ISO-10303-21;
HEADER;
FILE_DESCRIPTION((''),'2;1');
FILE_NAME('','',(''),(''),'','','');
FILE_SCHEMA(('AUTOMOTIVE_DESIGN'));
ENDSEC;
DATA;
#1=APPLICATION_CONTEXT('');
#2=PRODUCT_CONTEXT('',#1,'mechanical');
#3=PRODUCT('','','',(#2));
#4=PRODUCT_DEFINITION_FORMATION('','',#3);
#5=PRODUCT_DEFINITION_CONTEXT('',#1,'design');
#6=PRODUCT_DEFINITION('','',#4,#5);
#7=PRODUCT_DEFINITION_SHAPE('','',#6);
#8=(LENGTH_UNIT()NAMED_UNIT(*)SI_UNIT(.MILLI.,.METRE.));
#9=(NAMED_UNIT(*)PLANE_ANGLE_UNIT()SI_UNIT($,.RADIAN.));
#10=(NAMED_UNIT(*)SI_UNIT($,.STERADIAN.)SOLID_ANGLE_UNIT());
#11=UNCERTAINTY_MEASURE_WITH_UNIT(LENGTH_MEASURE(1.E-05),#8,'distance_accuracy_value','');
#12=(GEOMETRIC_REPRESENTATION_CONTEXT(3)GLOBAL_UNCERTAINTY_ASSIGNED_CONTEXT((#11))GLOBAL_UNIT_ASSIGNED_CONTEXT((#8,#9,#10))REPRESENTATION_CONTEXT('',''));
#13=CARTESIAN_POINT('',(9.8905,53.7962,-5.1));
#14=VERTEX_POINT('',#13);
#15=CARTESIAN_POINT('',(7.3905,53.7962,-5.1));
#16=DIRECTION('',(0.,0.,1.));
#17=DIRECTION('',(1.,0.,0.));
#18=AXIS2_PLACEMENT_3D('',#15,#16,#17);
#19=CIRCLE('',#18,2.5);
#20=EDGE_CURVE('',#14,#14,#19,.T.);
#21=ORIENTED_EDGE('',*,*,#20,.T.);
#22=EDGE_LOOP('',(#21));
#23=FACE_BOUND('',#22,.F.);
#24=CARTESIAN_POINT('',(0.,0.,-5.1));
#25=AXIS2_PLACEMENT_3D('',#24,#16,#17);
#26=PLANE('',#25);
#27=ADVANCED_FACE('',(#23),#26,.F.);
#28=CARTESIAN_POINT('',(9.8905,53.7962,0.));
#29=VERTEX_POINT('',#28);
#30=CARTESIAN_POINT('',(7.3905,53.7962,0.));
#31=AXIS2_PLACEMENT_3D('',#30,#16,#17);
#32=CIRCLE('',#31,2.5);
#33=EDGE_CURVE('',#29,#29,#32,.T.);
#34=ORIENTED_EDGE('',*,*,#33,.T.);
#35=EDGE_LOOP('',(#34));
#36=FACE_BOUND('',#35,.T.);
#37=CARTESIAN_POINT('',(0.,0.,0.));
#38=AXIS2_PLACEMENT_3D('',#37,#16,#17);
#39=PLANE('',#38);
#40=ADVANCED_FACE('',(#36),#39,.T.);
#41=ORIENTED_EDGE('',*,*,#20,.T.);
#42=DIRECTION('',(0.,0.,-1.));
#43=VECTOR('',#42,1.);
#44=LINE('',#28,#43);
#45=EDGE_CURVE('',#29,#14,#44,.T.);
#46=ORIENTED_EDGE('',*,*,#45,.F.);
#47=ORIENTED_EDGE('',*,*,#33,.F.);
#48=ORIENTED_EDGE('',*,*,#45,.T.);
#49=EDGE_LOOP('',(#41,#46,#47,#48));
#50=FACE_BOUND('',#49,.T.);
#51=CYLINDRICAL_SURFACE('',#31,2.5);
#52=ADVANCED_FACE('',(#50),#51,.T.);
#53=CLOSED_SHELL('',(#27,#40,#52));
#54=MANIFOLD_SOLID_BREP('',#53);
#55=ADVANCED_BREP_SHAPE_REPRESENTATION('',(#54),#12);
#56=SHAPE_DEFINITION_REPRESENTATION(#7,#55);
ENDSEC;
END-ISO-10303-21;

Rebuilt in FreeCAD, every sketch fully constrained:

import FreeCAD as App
import Part
import Sketcher

V = App.Vector

doc = App.newDocument("Part")
body = doc.addObject("PartDesign::Body", "Body")

# Sketch on XY plane
sketch1 = doc.addObject("Sketcher::SketchObject", "Sketch")
body.addObject(sketch1)
sketch1.AttachmentSupport = (doc.XY_Plane, [""])
sketch1.MapMode = "FlatFace"
sketch1.addGeometry(Part.Circle(V(7.4, 53.8, 0), V(0, 0, 1), 2.5), False)
sketch1.addConstraint([
    Sketcher.Constraint("Diameter", 0, 5.0),
    Sketcher.Constraint("DistanceX", -1, 1, 0, 3, 7.3905),
    Sketcher.Constraint("DistanceY", -1, 1, 0, 3, 53.7962),
])
pad1 = doc.addObject("PartDesign::Pad", "Pad")
body.addObject(pad1)
pad1.Profile = sketch1
pad1.Length = 5.1
pad1.Reversed = True

doc.recompute()
